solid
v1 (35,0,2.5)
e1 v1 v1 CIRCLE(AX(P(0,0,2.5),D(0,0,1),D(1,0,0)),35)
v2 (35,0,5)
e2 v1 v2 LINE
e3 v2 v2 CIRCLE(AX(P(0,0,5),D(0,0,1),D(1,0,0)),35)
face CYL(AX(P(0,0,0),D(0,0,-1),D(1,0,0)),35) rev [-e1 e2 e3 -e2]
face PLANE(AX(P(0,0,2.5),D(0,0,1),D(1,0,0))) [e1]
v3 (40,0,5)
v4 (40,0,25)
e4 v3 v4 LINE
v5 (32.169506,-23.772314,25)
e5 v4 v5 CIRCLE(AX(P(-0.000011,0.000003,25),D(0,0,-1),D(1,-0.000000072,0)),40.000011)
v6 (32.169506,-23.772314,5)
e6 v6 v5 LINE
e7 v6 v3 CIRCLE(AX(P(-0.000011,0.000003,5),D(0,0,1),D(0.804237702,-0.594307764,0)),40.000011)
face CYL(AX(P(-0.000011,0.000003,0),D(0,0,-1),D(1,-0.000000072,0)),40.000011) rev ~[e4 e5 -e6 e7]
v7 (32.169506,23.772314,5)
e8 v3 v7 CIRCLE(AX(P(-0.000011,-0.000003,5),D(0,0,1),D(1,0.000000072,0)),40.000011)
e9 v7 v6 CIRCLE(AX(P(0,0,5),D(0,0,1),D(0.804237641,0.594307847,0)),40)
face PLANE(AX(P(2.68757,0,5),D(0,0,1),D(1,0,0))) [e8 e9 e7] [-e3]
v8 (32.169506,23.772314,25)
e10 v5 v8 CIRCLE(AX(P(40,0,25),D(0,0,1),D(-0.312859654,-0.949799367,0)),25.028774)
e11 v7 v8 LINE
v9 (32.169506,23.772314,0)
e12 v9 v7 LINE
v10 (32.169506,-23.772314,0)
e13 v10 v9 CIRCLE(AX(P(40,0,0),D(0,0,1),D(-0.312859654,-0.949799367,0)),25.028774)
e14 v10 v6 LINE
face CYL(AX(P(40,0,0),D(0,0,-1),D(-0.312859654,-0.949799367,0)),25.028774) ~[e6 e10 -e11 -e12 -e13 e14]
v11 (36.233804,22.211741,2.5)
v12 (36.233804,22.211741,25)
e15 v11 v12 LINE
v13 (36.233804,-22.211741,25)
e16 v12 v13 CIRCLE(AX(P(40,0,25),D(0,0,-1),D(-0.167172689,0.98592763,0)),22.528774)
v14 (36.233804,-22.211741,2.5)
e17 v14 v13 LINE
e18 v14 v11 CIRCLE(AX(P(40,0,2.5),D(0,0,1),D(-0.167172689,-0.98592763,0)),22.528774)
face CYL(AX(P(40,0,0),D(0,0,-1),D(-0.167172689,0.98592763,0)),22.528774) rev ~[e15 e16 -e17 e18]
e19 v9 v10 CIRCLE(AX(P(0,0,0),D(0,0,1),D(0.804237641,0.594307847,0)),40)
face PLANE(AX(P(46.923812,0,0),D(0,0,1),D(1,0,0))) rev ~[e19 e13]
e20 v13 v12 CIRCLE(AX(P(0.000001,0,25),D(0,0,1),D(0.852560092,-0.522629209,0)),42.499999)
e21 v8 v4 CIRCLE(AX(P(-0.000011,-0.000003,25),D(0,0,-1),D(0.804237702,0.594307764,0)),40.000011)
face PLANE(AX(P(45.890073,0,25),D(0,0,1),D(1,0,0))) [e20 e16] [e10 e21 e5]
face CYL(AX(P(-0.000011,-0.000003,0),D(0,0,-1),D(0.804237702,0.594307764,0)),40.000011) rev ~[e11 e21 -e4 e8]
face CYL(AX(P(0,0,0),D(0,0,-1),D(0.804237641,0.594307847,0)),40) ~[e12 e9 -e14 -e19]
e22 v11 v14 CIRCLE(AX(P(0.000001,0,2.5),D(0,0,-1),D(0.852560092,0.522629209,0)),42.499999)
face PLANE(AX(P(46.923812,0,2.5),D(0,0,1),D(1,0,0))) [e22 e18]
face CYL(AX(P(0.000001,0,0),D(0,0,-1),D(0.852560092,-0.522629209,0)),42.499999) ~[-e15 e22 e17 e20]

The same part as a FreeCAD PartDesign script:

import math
import FreeCAD as App
import Part
import Sketcher
from FreeCAD import Vector
Q = App.Units.Quantity

doc = App.newDocument("Part")
body = doc.addObject("PartDesign::Body", "Body")

sketch1 = body.newObject("Sketcher::SketchObject", "Sketch")
sketch1.AttachmentSupport = (doc.getObject("XY_Plane"), [""])
sketch1.MapMode = "FlatFace"
sketch1.addGeometry(Part.ArcOfCircle(Part.Circle(Vector(0, 0, 0), Vector(0, 0, 1), 40), math.radians(0), math.radians(36)), False)
sketch1.addGeometry(Part.ArcOfCircle(Part.Circle(Vector(0, 0, 0), Vector(0, 0, 1), 40), math.radians(-36), math.radians(0)), False)
sketch1.addGeometry(Part.ArcOfCircle(Part.Circle(Vector(40, 0, 0), Vector(0, 0, 1), 25), math.radians(-108), math.radians(108)), False)
sketch1.addGeometry(Part.ArcOfCircle(Part.Circle(Vector(0, 0, 0), Vector(0, 0, 1), 42), math.radians(-32), math.radians(32)), False)
sketch1.addGeometry(Part.ArcOfCircle(Part.Circle(Vector(40, 0, 0), Vector(0, 0, 1), 23), math.radians(-100), math.radians(100)), False)
sketch1.addConstraint(Sketcher.Constraint("Tangent", 0, 1, 1, 2))
sketch1.addConstraint(Sketcher.Constraint("Coincident", 1, 1, 2, 1))
sketch1.addConstraint(Sketcher.Constraint("Coincident", 2, 2, 0, 2))
sketch1.addConstraint(Sketcher.Constraint("Coincident", 3, 1, 4, 1))
sketch1.addConstraint(Sketcher.Constraint("Coincident", 4, 2, 3, 2))
sketch1.addConstraint(Sketcher.Constraint("Coincident", 3, 3, -1, 1))
sketch1.addConstraint(Sketcher.Constraint("Coincident", 4, 3, 2, 3))
sketch1.addConstraint(Sketcher.Constraint("Coincident", 0, 1, 2, 3))
sketch1.addConstraint(Sketcher.Constraint("Equal", 0, 1))
sketch1.addConstraint(Sketcher.Constraint("Symmetric", 1, 1, 2, 2, -1))
sketch1.addConstraint(Sketcher.Constraint("Radius", 3, Q("42.499999 mm")))
sketch1.addConstraint(Sketcher.Constraint("DistanceX", -1, 1, 2, 3, Q("40 mm")))
sketch1.addConstraint(Sketcher.Constraint("Radius", 0, Q("40.000011 mm")))
sketch1.addConstraint(Sketcher.Constraint("Radius", 2, Q("25.028774 mm")))
sketch1.addConstraint(Sketcher.Constraint("Radius", 4, Q("22.528774 mm")))
pad1 = body.newObject("PartDesign::Pad", "Pad")
pad1.Profile = sketch1
pad1.Length = 25

sketch2 = body.newObject("Sketcher::SketchObject", "Sketch001")
sketch2.AttachmentSupport = (doc.getObject("XY_Plane"), [""])
sketch2.MapMode = "FlatFace"
sketch2.addGeometry(Part.ArcOfCircle(Part.Circle(Vector(0, 0, 0), Vector(0, 0, 1), 40), math.radians(-36), math.radians(0)), False)
sketch2.addGeometry(Part.ArcOfCircle(Part.Circle(Vector(0, 0, 0), Vector(0, 0, 1), 40), math.radians(0), math.radians(36)), False)
sketch2.addGeometry(Part.ArcOfCircle(Part.Circle(Vector(0, 0, 0), Vector(0, 0, 1), 40), math.radians(36), math.radians(324)), False)
sketch2.addGeometry(Part.Circle(Vector(0, 0, 0), Vector(0, 0, 1), 35), False)
sketch2.addConstraint(Sketcher.Constraint("Tangent", 0, 2, 1, 1))
sketch2.addConstraint(Sketcher.Constraint("Tangent", 1, 2, 2, 1))
sketch2.addConstraint(Sketcher.Constraint("Tangent", 2, 2, 0, 1))
sketch2.addConstraint(Sketcher.Constraint("Coincident", 2, 3, -1, 1))
sketch2.addConstraint(Sketcher.Constraint("Coincident", 3, 3, -1, 1))
sketch2.addConstraint(Sketcher.Constraint("PointOnObject", 0, 2, -1))
sketch2.addConstraint(Sketcher.Constraint("Vertical", 1, 2, 2, 2))
sketch2.addConstraint(Sketcher.Constraint("Diameter", 3, Q("70 mm")))
sketch2.addConstraint(Sketcher.Constraint("Radius", 2, Q("40 mm")))
sketch2.addConstraint(Sketcher.Constraint("DistanceY", 0, 3, 1, 2, Q("23.772311 mm")))
pad2 = body.newObject("PartDesign::Pad", "Pad001")
pad2.Profile = sketch2
pad2.Length = 5

sketch3 = body.newObject("Sketcher::SketchObject", "Sketch002")
sketch3.AttachmentSupport = (doc.getObject("XY_Plane"), [""])
sketch3.MapMode = "FlatFace"
sketch3.addGeometry(Part.Circle(Vector(0, 0, 0), Vector(0, 0, 1), 35), False)
sketch3.addConstraint(Sketcher.Constraint("Coincident", 0, 3, -1, 1))
sketch3.addConstraint(Sketcher.Constraint("Diameter", 0, Q("70 mm")))
pad3 = body.newObject("PartDesign::Pad", "Pad002")
pad3.Profile = sketch3
pad3.Length = 2.5

sketch4 = body.newObject("Sketcher::SketchObject", "Sketch003")
sketch4.AttachmentSupport = (doc.getObject("XY_Plane"), [""])
sketch4.MapMode = "FlatFace"
sketch4.addGeometry(Part.ArcOfCircle(Part.Circle(Vector(0, 0, 0), Vector(0, 0, 1), 42), math.radians(-32), math.radians(32)), False)
sketch4.addGeometry(Part.ArcOfCircle(Part.Circle(Vector(40, 0, 0), Vector(0, 0, 1), 23), math.radians(-100), math.radians(100)), False)
sketch4.addConstraint(Sketcher.Constraint("Coincident", 0, 1, 1, 1))
sketch4.addConstraint(Sketcher.Constraint("Coincident", 1, 2, 0, 2))
sketch4.addConstraint(Sketcher.Constraint("Coincident", 0, 3, -1, 1))
sketch4.addConstraint(Sketcher.Constraint("PointOnObject", 1, 3, -1))
sketch4.addConstraint(Sketcher.Constraint("Radius", 0, Q("42.499999 mm")))
sketch4.addConstraint(Sketcher.Constraint("DistanceX", -1, 1, 1, 3, Q("40 mm")))
sketch4.addConstraint(Sketcher.Constraint("Radius", 1, Q("22.528774 mm")))
pad4 = body.newObject("PartDesign::Pad", "Pad003")
pad4.Profile = sketch4
pad4.Length = 2.5

doc.recompute()
